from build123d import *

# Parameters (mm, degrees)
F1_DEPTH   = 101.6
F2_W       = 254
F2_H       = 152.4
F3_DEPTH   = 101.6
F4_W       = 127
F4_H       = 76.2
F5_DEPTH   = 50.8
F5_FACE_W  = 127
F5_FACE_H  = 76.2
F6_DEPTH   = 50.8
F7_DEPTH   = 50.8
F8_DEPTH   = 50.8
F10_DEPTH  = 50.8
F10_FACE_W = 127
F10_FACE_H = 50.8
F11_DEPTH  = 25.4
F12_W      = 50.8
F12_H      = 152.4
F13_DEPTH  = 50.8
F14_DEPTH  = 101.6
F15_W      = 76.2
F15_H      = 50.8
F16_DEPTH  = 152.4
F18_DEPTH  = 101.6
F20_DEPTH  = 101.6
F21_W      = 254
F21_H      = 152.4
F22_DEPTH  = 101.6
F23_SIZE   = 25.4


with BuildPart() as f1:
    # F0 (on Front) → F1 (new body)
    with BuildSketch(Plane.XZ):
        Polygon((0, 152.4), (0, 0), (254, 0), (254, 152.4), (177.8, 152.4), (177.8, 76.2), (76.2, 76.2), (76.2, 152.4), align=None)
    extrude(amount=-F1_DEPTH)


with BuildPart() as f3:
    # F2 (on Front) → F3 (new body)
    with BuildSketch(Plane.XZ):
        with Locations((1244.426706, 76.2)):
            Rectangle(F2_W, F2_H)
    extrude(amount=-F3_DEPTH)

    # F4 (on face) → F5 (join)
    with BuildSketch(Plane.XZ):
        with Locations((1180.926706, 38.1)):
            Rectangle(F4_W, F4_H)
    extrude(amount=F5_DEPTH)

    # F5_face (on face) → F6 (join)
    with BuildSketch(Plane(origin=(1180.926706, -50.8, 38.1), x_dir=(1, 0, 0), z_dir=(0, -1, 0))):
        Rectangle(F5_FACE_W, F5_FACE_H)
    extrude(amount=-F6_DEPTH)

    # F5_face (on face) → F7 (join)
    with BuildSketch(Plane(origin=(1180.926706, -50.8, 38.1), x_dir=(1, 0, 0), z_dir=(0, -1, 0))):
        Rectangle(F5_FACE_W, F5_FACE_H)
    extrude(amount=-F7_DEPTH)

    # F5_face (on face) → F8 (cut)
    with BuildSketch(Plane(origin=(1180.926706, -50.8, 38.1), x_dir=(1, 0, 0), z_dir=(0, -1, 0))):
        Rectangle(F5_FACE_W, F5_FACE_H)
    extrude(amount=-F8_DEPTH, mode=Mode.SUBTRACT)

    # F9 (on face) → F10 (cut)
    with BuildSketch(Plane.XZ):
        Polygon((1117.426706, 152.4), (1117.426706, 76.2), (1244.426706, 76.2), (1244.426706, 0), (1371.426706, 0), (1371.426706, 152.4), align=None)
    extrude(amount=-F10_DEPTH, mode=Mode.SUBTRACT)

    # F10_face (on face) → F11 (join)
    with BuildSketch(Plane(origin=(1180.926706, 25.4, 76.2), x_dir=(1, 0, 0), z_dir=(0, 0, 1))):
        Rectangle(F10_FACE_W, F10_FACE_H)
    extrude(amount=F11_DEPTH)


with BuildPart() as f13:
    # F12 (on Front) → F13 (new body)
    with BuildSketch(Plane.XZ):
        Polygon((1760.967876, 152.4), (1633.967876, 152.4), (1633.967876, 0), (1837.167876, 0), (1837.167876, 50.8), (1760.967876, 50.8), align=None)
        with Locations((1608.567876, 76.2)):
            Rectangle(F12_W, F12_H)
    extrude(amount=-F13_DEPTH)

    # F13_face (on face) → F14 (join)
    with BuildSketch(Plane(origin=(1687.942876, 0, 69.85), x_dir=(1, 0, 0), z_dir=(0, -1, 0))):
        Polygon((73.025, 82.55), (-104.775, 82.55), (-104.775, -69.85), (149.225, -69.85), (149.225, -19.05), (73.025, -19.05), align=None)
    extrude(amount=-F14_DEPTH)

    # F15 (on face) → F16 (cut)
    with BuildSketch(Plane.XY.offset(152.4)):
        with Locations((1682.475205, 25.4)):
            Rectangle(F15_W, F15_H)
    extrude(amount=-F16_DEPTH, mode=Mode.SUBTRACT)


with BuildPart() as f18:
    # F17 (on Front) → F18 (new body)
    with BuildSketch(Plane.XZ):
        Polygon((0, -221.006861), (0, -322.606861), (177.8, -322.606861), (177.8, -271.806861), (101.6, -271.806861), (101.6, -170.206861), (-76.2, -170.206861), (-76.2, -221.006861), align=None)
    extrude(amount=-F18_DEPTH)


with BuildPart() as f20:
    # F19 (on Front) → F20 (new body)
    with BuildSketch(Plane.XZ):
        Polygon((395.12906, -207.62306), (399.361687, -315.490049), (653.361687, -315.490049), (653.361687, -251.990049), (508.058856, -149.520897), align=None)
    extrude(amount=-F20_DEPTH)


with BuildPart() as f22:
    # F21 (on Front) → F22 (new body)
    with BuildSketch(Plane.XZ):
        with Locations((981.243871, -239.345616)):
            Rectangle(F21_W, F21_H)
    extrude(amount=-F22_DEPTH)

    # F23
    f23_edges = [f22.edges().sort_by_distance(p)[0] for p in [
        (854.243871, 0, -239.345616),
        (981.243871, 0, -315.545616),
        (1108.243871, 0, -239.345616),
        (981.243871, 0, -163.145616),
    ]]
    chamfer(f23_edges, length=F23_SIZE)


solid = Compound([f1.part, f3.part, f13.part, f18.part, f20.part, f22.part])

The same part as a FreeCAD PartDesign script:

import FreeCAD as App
import Part
import Sketcher
from FreeCAD import Vector
Q = App.Units.Quantity


def edges_at(feature, points):
    """Names of the edges that pass closest to the given points."""
    edges = feature.Shape.Edges
    near = lambda p: min(range(len(edges)), key=lambda i: edges[i].distToShape(Part.Vertex(*p))[0])
    return sorted({f"Edge{near(p) + 1}" for p in points})


def add_polygon(sketch, points):
    """Adds a closed chain of lines whose ends are joined by coincident constraints."""
    first, n = sketch.GeometryCount, len(points)
    for a, b in zip(points, points[1:] + points[:1]):
        sketch.addGeometry(Part.LineSegment(App.Vector(*a, 0), App.Vector(*b, 0)), False)
    for i in range(n):
        sketch.addConstraint(Sketcher.Constraint("Coincident", first + i, 2, first + (i + 1) % n, 1))

doc = App.newDocument("Part")
body = doc.addObject("PartDesign::Body", "Body")

sketch1 = body.newObject("Sketcher::SketchObject", "Sketch")
sketch1.AttachmentSupport = (doc.getObject("XZ_Plane"), [""])
sketch1.MapMode = "FlatFace"
add_polygon(sketch1, [(0, 152), (0, 0), (254, 0), (254, 152), (178, 152), (178, 76), (76, 76), (76, 152)])
sketch1.addConstraint(Sketcher.Constraint("Vertical", 0))
sketch1.addConstraint(Sketcher.Constraint("Horizontal", 1))
sketch1.addConstraint(Sketcher.Constraint("Vertical", 2))
sketch1.addConstraint(Sketcher.Constraint("Horizontal", 3))
sketch1.addConstraint(Sketcher.Constraint("Vertical", 4))
sketch1.addConstraint(Sketcher.Constraint("Horizontal", 5))
sketch1.addConstraint(Sketcher.Constraint("Vertical", 6))
sketch1.addConstraint(Sketcher.Constraint("Horizontal", 7))
sketch1.addConstraint(Sketcher.Constraint("Coincident", 0, 2, -1, 1))
sketch1.addConstraint(Sketcher.Constraint("Horizontal", 3, 2, 6, 2))
sketch1.addConstraint(Sketcher.Constraint("Equal", 3, 7))
sketch1.addConstraint(Sketcher.Constraint("Equal", 7, 4))
sketch1.addConstraint(Sketcher.Constraint("DistanceX", 1, 1, 1, 2, Q("10 in")))
sketch1.addConstraint(Sketcher.Constraint("DistanceX", 3, 2, 3, 1, Q("3 in")))
sketch1.addConstraint(Sketcher.Constraint("DistanceY", 0, 2, 0, 1, Q("6 in")))
pad1 = body.newObject("PartDesign::Pad", "Pad")
pad1.Profile = sketch1
pad1.Length = Q("4 in")
pad1.Reversed = True
body2 = doc.addObject("PartDesign::Body", "Body001")

sketch2 = body2.newObject("Sketcher::SketchObject", "Sketch001")
sketch2.AttachmentSupport = (doc.getObject("XZ_Plane001"), [""])
sketch2.MapMode = "FlatFace"
add_polygon(sketch2, [(1117, 152), (1117, 0), (1371, 0), (1371, 152)])
sketch2.addConstraint(Sketcher.Constraint("Vertical", 0))
sketch2.addConstraint(Sketcher.Constraint("Horizontal", 1))
sketch2.addConstraint(Sketcher.Constraint("Vertical", 2))
sketch2.addConstraint(Sketcher.Constraint("Horizontal", 3))
sketch2.addConstraint(Sketcher.Constraint("PointOnObject", 0, 2, -1))
sketch2.addConstraint(Sketcher.Constraint("DistanceX", 1, 1, 1, 2, Q("10 in")))
sketch2.addConstraint(Sketcher.Constraint("DistanceY", 0, 2, 0, 1, Q("6 in")))
sketch2.addConstraint(Sketcher.Constraint("DistanceX", -1, 1, 0, 2, 1117.426706))
pad2 = body2.newObject("PartDesign::Pad", "Pad001")
pad2.Profile = sketch2
pad2.Length = Q("4 in")
pad2.Reversed = True

sketch3 = body2.newObject("Sketcher::SketchObject", "Sketch002")
sketch3.AttachmentSupport = (doc.getObject("XZ_Plane001"), [""])
sketch3.MapMode = "FlatFace"
add_polygon(sketch3, [(1117, 76), (1117, 0), (1244, 0), (1244, 76)])
sketch3.addConstraint(Sketcher.Constraint("Vertical", 0))
sketch3.addConstraint(Sketcher.Constraint("Horizontal", 1))
sketch3.addConstraint(Sketcher.Constraint("Vertical", 2))
sketch3.addConstraint(Sketcher.Constraint("Horizontal", 3))
sketch3.addConstraint(Sketcher.Constraint("PointOnObject", 0, 2, -1))
sketch3.addConstraint(Sketcher.Constraint("DistanceX", 1, 1, 1, 2, Q("5 in")))
sketch3.addConstraint(Sketcher.Constraint("DistanceY", 0, 2, 0, 1, Q("3 in")))
sketch3.addConstraint(Sketcher.Constraint("DistanceX", -1, 1, 0, 2, 1117.426706))
pad3 = body2.newObject("PartDesign::Pad", "Pad002")
pad3.Profile = sketch3
pad3.Length = Q("2 in")

sketch4 = body2.newObject("Sketcher::SketchObject", "Sketch003")
sketch4.AttachmentSupport = (doc.getObject("XZ_Plane001"), [""])
sketch4.MapMode = "FlatFace"
sketch4.AttachmentOffset = App.Placement(Vector(0, 0, 2 * 25.4), App.Rotation())
add_polygon(sketch4, [(1117, 76), (1117, 0), (1244, 0), (1244, 76)])
sketch4.addConstraint(Sketcher.Constraint("Vertical", 0))
sketch4.addConstraint(Sketcher.Constraint("Horizontal", 1))
sketch4.addConstraint(Sketcher.Constraint("Vertical", 2))
sketch4.addConstraint(Sketcher.Constraint("Horizontal", 3))
sketch4.addConstraint(Sketcher.Constraint("PointOnObject", 0, 2, -1))
sketch4.addConstraint(Sketcher.Constraint("DistanceX", 1, 1, 1, 2, Q("5 in")))
sketch4.addConstraint(Sketcher.Constraint("DistanceY", 0, 2, 0, 1, Q("3 in")))
sketch4.addConstraint(Sketcher.Constraint("DistanceX", -1, 1, 0, 2, 1117.426706))
pad4 = body2.newObject("PartDesign::Pad", "Pad003")
pad4.Profile = sketch4
pad4.Length = Q("2 in")
pad4.Reversed = True

sketch5 = body2.newObject("Sketcher::SketchObject", "Sketch004")
sketch5.AttachmentSupport = (doc.getObject("XZ_Plane001"), [""])
sketch5.MapMode = "FlatFace"
sketch5.AttachmentOffset = App.Placement(Vector(0, 0, 2 * 25.4), App.Rotation())
add_polygon(sketch5, [(1117, 76), (1117, 0), (1244, 0), (1244, 76)])
sketch5.addConstraint(Sketcher.Constraint("Vertical", 0))
sketch5.addConstraint(Sketcher.Constraint("Horizontal", 1))
sketch5.addConstraint(Sketcher.Constraint("Vertical", 2))
sketch5.addConstraint(Sketcher.Constraint("Horizontal", 3))
sketch5.addConstraint(Sketcher.Constraint("PointOnObject", 0, 2, -1))
sketch5.addConstraint(Sketcher.Constraint("DistanceX", 1, 1, 1, 2, Q("5 in")))
sketch5.addConstraint(Sketcher.Constraint("DistanceY", 0, 2, 0, 1, Q("3 in")))
sketch5.addConstraint(Sketcher.Constraint("DistanceX", -1, 1, 0, 2, 1117.426706))
pad5 = body2.newObject("PartDesign::Pad", "Pad004")
pad5.Profile = sketch5
pad5.Length = Q("2 in")
pad5.Reversed = True

sketch6 = body2.newObject("Sketcher::SketchObject", "Sketch005")
sketch6.AttachmentSupport = (doc.getObject("XZ_Plane001"), [""])
sketch6.MapMode = "FlatFace"
sketch6.AttachmentOffset = App.Placement(Vector(0, 0, 2 * 25.4), App.Rotation())
add_polygon(sketch6, [(1117, 76), (1117, 0), (1244, 0), (1244, 76)])
sketch6.addConstraint(Sketcher.Constraint("Vertical", 0))
sketch6.addConstraint(Sketcher.Constraint("Horizontal", 1))
sketch6.addConstraint(Sketcher.Constraint("Vertical", 2))
sketch6.addConstraint(Sketcher.Constraint("Horizontal", 3))
sketch6.addConstraint(Sketcher.Constraint("PointOnObject", 0, 2, -1))
sketch6.addConstraint(Sketcher.Constraint("DistanceX", 1, 1, 1, 2, Q("5 in")))
sketch6.addConstraint(Sketcher.Constraint("DistanceY", 0, 2, 0, 1, Q("3 in")))
sketch6.addConstraint(Sketcher.Constraint("DistanceX", -1, 1, 0, 2, 1117.426706))
pocket1 = body2.newObject("PartDesign::Pocket", "Pocket")
pocket1.Profile = sketch6
pocket1.Length = Q("2 in")

sketch7 = body2.newObject("Sketcher::SketchObject", "Sketch006")
sketch7.AttachmentSupport = (doc.getObject("XZ_Plane001"), [""])
sketch7.MapMode = "FlatFace"
add_polygon(sketch7, [(1117, 152), (1117, 76), (1244, 76), (1244, 0), (1371, 0), (1371, 152)])
sketch7.addConstraint(Sketcher.Constraint("Vertical", 0))
sketch7.addConstraint(Sketcher.Constraint("Horizontal", 1))
sketch7.addConstraint(Sketcher.Constraint("Vertical", 2))
sketch7.addConstraint(Sketcher.Constraint("Horizontal", 3))
sketch7.addConstraint(Sketcher.Constraint("Vertical", 4))
sketch7.addConstraint(Sketcher.Constraint("Horizontal", 5))
sketch7.addConstraint(Sketcher.Constraint("PointOnObject", 2, 2, -1))
sketch7.addConstraint(Sketcher.Constraint("Equal", 1, 3))
sketch7.addConstraint(Sketcher.Constraint("Equal", 0, 2))
sketch7.addConstraint(Sketcher.Constraint("DistanceX", 1, 1, 1, 2, Q("5 in")))
sketch7.addConstraint(Sketcher.Constraint("DistanceY", 0, 2, 0, 1, Q("3 in")))
sketch7.addConstraint(Sketcher.Constraint("DistanceX", -1, 1, 0, 2, 1117.426706))
pocket2 = body2.newObject("PartDesign::Pocket", "Pocket001")
pocket2.Profile = sketch7
pocket2.Length = Q("2 in")

sketch8 = body2.newObject("Sketcher::SketchObject", "Sketch007")
sketch8.AttachmentSupport = (doc.getObject("XY_Plane001"), [""])
sketch8.MapMode = "FlatFace"
sketch8.AttachmentOffset = App.Placement(Vector(0, 0, 3 * 25.4), App.Rotation())
add_polygon(sketch8, [(1117, 51), (1117, 0), (1244, 0), (1244, 51)])
sketch8.addConstraint(Sketcher.Constraint("Vertical", 0))
sketch8.addConstraint(Sketcher.Constraint("Horizontal", 1))
sketch8.addConstraint(Sketcher.Constraint("Vertical", 2))
sketch8.addConstraint(Sketcher.Constraint("Horizontal", 3))
sketch8.addConstraint(Sketcher.Constraint("PointOnObject", 0, 2, -1))
sketch8.addConstraint(Sketcher.Constraint("DistanceX", 1, 1, 1, 2, Q("5 in")))
sketch8.addConstraint(Sketcher.Constraint("DistanceY", 0, 2, 0, 1, Q("2 in")))
sketch8.addConstraint(Sketcher.Constraint("DistanceX", -1, 1, 0, 2, 1117.426706))
pad6 = body2.newObject("PartDesign::Pad", "Pad005")
pad6.Profile = sketch8
pad6.Length = Q("1 in")
body3 = doc.addObject("PartDesign::Body", "Body002")

sketch9 = body3.newObject("Sketcher::SketchObject", "Sketch008")
sketch9.AttachmentSupport = (doc.getObject("XZ_Plane002"), [""])
sketch9.MapMode = "FlatFace"
add_polygon(sketch9, [(1761, 152), (1583, 152), (1583, 0), (1837, 0), (1837, 51), (1761, 51)])
sketch9.addConstraint(Sketcher.Constraint("Horizontal", 0))
sketch9.addConstraint(Sketcher.Constraint("Vertical", 1))
sketch9.addConstraint(Sketcher.Constraint("Horizontal", 2))
sketch9.addConstraint(Sketcher.Constraint("Vertical", 3))
sketch9.addConstraint(Sketcher.Constraint("Horizontal", 4))
sketch9.addConstraint(Sketcher.Constraint("Vertical", 5))
sketch9.addConstraint(Sketcher.Constraint("PointOnObject", 1, 2, -1))
sketch9.addConstraint(Sketcher.Constraint("DistanceX", 0, 2, 0, 1, Q("7 in")))
sketch9.addConstraint(Sketcher.Constraint("DistanceX", 2, 1, 2, 2, Q("10 in")))
sketch9.addConstraint(Sketcher.Constraint("DistanceY", 1, 2, 1, 1, Q("6 in")))
sketch9.addConstraint(Sketcher.Constraint("DistanceY", 3, 1, 3, 2, Q("2 in")))
sketch9.addConstraint(Sketcher.Constraint("DistanceX", -1, 1, 0, 2, 1583.167876))
pad7 = body3.newObject("PartDesign::Pad", "Pad006")
pad7.Profile = sketch9
pad7.Length = Q("2 in")
pad7.Reversed = True

sketch10 = body3.newObject("Sketcher::SketchObject", "Sketch009")
sketch10.AttachmentSupport = (doc.getObject("XZ_Plane002"), [""])
sketch10.MapMode = "FlatFace"
add_polygon(sketch10, [(1761, 152), (1583, 152), (1583, 0), (1837, 0), (1837, 51), (1761, 51)])
sketch10.addConstraint(Sketcher.Constraint("Horizontal", 0))
sketch10.addConstraint(Sketcher.Constraint("Vertical", 1))
sketch10.addConstraint(Sketcher.Constraint("Horizontal", 2))
sketch10.addConstraint(Sketcher.Constraint("Vertical", 3))
sketch10.addConstraint(Sketcher.Constraint("Horizontal", 4))
sketch10.addConstraint(Sketcher.Constraint("Vertical", 5))
sketch10.addConstraint(Sketcher.Constraint("PointOnObject", 1, 2, -1))
sketch10.addConstraint(Sketcher.Constraint("DistanceX", 0, 2, 0, 1, Q("7 in")))
sketch10.addConstraint(Sketcher.Constraint("DistanceX", 2, 1, 2, 2, Q("10 in")))
sketch10.addConstraint(Sketcher.Constraint("DistanceY", 1, 2, 1, 1, Q("6 in")))
sketch10.addConstraint(Sketcher.Constraint("DistanceY", 3, 1, 3, 2, Q("2 in")))
sketch10.addConstraint(Sketcher.Constraint("DistanceX", -1, 1, 0, 2, 1583.167876))
pad8 = body3.newObject("PartDesign::Pad", "Pad007")
pad8.Profile = sketch10
pad8.Length = Q("4 in")
pad8.Reversed = True

sketch11 = body3.newObject("Sketcher::SketchObject", "Sketch010")
sketch11.AttachmentSupport = (doc.getObject("XY_Plane002"), [""])
sketch11.MapMode = "FlatFace"
sketch11.AttachmentOffset = App.Placement(Vector(0, 0, 6 * 25.4), App.Rotation())
add_polygon(sketch11, [(1644, 51), (1644, 0), (1721, 0), (1721, 51)])
sketch11.addConstraint(Sketcher.Constraint("Vertical", 0))
sketch11.addConstraint(Sketcher.Constraint("Horizontal", 1))
sketch11.addConstraint(Sketcher.Constraint("Vertical", 2))
sketch11.addConstraint(Sketcher.Constraint("Horizontal", 3))
sketch11.addConstraint(Sketcher.Constraint("PointOnObject", 0, 2, -1))
sketch11.addConstraint(Sketcher.Constraint("DistanceX", 1, 1, 1, 2, Q("3 in")))
sketch11.addConstraint(Sketcher.Constraint("DistanceY", 0, 2, 0, 1, Q("2 in")))
sketch11.addConstraint(Sketcher.Constraint("DistanceX", -1, 1, 0, 2, 1644.375205))
pocket3 = body3.newObject("PartDesign::Pocket", "Pocket002")
pocket3.Profile = sketch11
pocket3.Length = Q("6 in")
body4 = doc.addObject("PartDesign::Body", "Body003")

sketch12 = body4.newObject("Sketcher::SketchObject", "Sketch011")
sketch12.AttachmentSupport = (doc.getObject("XZ_Plane003"), [""])
sketch12.MapMode = "FlatFace"
add_polygon(sketch12, [(0, -221), (0, -323), (178, -323), (178, -272), (102, -272), (102, -170), (-76, -170), (-76, -221)])
sketch12.addConstraint(Sketcher.Constraint("Vertical", 0))
sketch12.addConstraint(Sketcher.Constraint("Horizontal", 1))
sketch12.addConstraint(Sketcher.Constraint("Vertical", 2))
sketch12.addConstraint(Sketcher.Constraint("Horizontal", 3))
sketch12.addConstraint(Sketcher.Constraint("Vertical", 4))
sketch12.addConstraint(Sketcher.Constraint("Horizontal", 5))
sketch12.addConstraint(Sketcher.Constraint("Vertical", 6))
sketch12.addConstraint(Sketcher.Constraint("Horizontal", 7))
sketch12.addConstraint(Sketcher.Constraint("PointOnObject", 0, 2, -2))
sketch12.addConstraint(Sketcher.Constraint("Equal", 1, 5))
sketch12.addConstraint(Sketcher.Constraint("Equal", 0, 4))
sketch12.addConstraint(Sketcher.Constraint("DistanceX", 1, 1, 1, 2, Q("7 in")))
sketch12.addConstraint(Sketcher.Constraint("DistanceX", 3, 2, 3, 1, Q("3 in")))
sketch12.addConstraint(Sketcher.Constraint("DistanceY", 0, 2, 0, 1, Q("4 in")))
sketch12.addConstraint(Sketcher.Constraint("DistanceY", 2, 1, 2, 2, Q("2 in")))
sketch12.addConstraint(Sketcher.Constraint("DistanceY", 0, 2, -1, 1, 322.606861))
pad9 = body4.newObject("PartDesign::Pad", "Pad008")
pad9.Profile = sketch12
pad9.Length = Q("4 in")
pad9.Reversed = True
body5 = doc.addObject("PartDesign::Body", "Body004")

sketch13 = body5.newObject("Sketcher::SketchObject", "Sketch012")
sketch13.AttachmentSupport = (doc.getObject("XZ_Plane004"), [""])
sketch13.MapMode = "FlatFace"
add_polygon(sketch13, [(395, -208), (399, -315), (653, -315), (653, -252), (508, -150)])
sketch13.addConstraint(Sketcher.Constraint("Horizontal", 1))
sketch13.addConstraint(Sketcher.Constraint("Vertical", 2))
sketch13.addConstraint(Sketcher.Constraint("DistanceX", 1, 1, 1, 2, Q("10 in")))
sketch13.addConstraint(Sketcher.Constraint("Distance", 3, Q("7 in")))
sketch13.addConstraint(Sketcher.Constraint("Distance", 4, Q("5 in")))
sketch13.addConstraint(Sketcher.Constraint("DistanceY", 2, 1, 2, 2, Q("2.5 in")))
sketch13.addConstraint(Sketcher.Constraint("Distance", 0, Q("4.25 in")))
sketch13.addConstraint(Sketcher.Constraint("DistanceY", 0, 2, -1, 1, 315.490049))
sketch13.addConstraint(Sketcher.Constraint("DistanceX", -1, 1, 4, 2, 395.12906))
sketch13.addConstraint(Sketcher.Constraint("DistanceY", 4, 2, -1, 1, 207.62306))
pad10 = body5.newObject("PartDesign::Pad", "Pad009")
pad10.Profile = sketch13
pad10.Length = Q("4 in")
pad10.Reversed = True
body6 = doc.addObject("PartDesign::Body", "Body005")

sketch14 = body6.newObject("Sketcher::SketchObject", "Sketch013")
sketch14.AttachmentSupport = (doc.getObject("XZ_Plane005"), [""])
sketch14.MapMode = "FlatFace"
add_polygon(sketch14, [(854, -163), (854, -316), (1108, -316), (1108, -163)])
sketch14.addConstraint(Sketcher.Constraint("Vertical", 0))
sketch14.addConstraint(Sketcher.Constraint("Horizontal", 1))
sketch14.addConstraint(Sketcher.Constraint("Vertical", 2))
sketch14.addConstraint(Sketcher.Constraint("Horizontal", 3))
sketch14.addConstraint(Sketcher.Constraint("DistanceX", 1, 1, 1, 2, Q("10 in")))
sketch14.addConstraint(Sketcher.Constraint("DistanceY", 0, 2, 0, 1, Q("6 in")))
sketch14.addConstraint(Sketcher.Constraint("DistanceX", -1, 1, 0, 2, 854.243871))
sketch14.addConstraint(Sketcher.Constraint("DistanceY", 0, 2, -1, 1, 315.545616))
pad11 = body6.newObject("PartDesign::Pad", "Pad010")
pad11.Profile = sketch14
pad11.Length = Q("4 in")
pad11.Reversed = True
doc.recompute()

chamfer = body6.newObject("PartDesign::Chamfer", "Chamfer")
chamfer.Base = (pad11, edges_at(pad11, [
    (854.244, 0, -239.346),
    (981.244, 0, -315.546),
    (1108.244, 0, -239.346),
    (981.244, 0, -163.146),
]))
chamfer.Size = Q("1 in")

doc.recompute()
